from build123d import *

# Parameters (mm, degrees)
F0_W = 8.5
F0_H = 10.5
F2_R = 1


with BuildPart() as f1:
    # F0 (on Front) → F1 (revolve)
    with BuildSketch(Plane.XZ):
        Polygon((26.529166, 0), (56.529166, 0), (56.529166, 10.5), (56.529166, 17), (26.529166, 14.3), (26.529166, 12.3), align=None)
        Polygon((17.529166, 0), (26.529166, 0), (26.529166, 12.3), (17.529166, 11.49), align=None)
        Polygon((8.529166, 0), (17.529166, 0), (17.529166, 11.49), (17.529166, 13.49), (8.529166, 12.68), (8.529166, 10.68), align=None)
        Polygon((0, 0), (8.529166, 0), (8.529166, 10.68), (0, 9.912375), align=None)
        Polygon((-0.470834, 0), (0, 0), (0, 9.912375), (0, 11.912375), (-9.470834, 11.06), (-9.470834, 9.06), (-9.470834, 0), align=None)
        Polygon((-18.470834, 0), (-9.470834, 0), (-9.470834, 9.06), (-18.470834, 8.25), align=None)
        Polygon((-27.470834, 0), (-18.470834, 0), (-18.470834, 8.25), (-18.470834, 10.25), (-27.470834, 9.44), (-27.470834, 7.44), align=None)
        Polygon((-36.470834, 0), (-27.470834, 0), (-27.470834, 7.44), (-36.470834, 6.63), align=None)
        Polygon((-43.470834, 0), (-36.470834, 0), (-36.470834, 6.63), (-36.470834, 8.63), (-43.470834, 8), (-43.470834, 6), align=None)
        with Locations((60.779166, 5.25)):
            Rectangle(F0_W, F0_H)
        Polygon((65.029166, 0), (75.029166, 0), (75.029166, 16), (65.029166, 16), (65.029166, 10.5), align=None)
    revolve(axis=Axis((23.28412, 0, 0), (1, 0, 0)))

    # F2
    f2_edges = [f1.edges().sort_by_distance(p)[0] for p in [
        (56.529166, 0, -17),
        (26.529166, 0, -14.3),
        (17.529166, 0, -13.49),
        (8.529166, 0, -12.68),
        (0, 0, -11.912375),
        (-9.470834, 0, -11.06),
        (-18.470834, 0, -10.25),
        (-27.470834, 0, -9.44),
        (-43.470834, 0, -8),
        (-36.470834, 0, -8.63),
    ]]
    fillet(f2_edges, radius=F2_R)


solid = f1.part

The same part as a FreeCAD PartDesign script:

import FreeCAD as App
import Part
import Sketcher

V = App.Vector
Q = App.Units.Quantity


def edges_at(feature, points):
    """Names of the edges that pass closest to the given points."""
    edges = feature.Shape.Edges
    near = lambda p: min(range(len(edges)), key=lambda i: edges[i].distToShape(Part.Vertex(*p))[0])
    return sorted({f"Edge{near(p) + 1}" for p in points})


def add_polygon(sketch, points):
    """Adds a closed chain of lines whose ends are joined by coincident constraints."""
    first, n = sketch.GeometryCount, len(points)
    for a, b in zip(points, points[1:] + points[:1]):
        sketch.addGeometry(Part.LineSegment(App.Vector(*a, 0), App.Vector(*b, 0)), False)
    for i in range(n):
        sketch.addConstraint(Sketcher.Constraint("Coincident", first + i, 2, first + (i + 1) % n, 1))

doc = App.newDocument("Part")
body = doc.addObject("PartDesign::Body", "Body")

sketch1 = body.newObject("Sketcher::SketchObject", "Sketch")
sketch1.AttachmentSupport = (doc.getObject("XZ_Plane"), [""])
sketch1.MapMode = "FlatFace"
add_polygon(sketch1, [(56.529166, 10.5), (56.529166, 17), (26.529166, 14.3), (26.529166, 12.3), (17.529166, 11.49), (17.529166, 13.49), (8.529166, 12.68), (8.529166, 10.68), (0, 9.912375), (0, 11.912375), (-9.470834, 11.06), (-9.470834, 9.06), (-18.470834, 8.25), (-18.470834, 10.25), (-27.470834, 9.44), (-27.470834, 7.44), (-36.470834, 6.63), (-36.470834, 8.63), (-43.470834, 8), (-43.470834, 0), (75.029166, 0), (75.029166, 16), (65.029166, 16), (65.029166, 10.5)])
sketch1.addConstraint(Sketcher.Constraint("Vertical", 0))
sketch1.addConstraint(Sketcher.Constraint("Vertical", 2))
sketch1.addConstraint(Sketcher.Constraint("Vertical", 4))
sketch1.addConstraint(Sketcher.Constraint("Vertical", 6))
sketch1.addConstraint(Sketcher.Constraint("Vertical", 8))
sketch1.addConstraint(Sketcher.Constraint("Vertical", 10))
sketch1.addConstraint(Sketcher.Constraint("Vertical", 12))
sketch1.addConstraint(Sketcher.Constraint("Vertical", 14))
sketch1.addConstraint(Sketcher.Constraint("Vertical", 16))
sketch1.addConstraint(Sketcher.Constraint("Vertical", 18))
sketch1.addConstraint(Sketcher.Constraint("Horizontal", 19))
sketch1.addConstraint(Sketcher.Constraint("Vertical", 20))
sketch1.addConstraint(Sketcher.Constraint("Horizontal", 21))
sketch1.addConstraint(Sketcher.Constraint("Vertical", 22))
sketch1.addConstraint(Sketcher.Constraint("Horizontal", 23))
sketch1.addConstraint(Sketcher.Constraint("PointOnObject", 7, 2, -2))
sketch1.addConstraint(Sketcher.Constraint("PointOnObject", 18, 2, -1))
sketch1.addConstraint(Sketcher.Constraint("Parallel", 1, 3))
sketch1.addConstraint(Sketcher.Constraint("Parallel", 3, 5))
sketch1.addConstraint(Sketcher.Constraint("Parallel", 5, 7))
sketch1.addConstraint(Sketcher.Constraint("Parallel", 7, 9))
sketch1.addConstraint(Sketcher.Constraint("Parallel", 9, 11))
sketch1.addConstraint(Sketcher.Constraint("Parallel", 11, 13))
sketch1.addConstraint(Sketcher.Constraint("Parallel", 13, 15))
sketch1.addConstraint(Sketcher.Constraint("Parallel", 15, 17))
sketch1.addConstraint(Sketcher.Constraint("Equal", 2, 4))
sketch1.addConstraint(Sketcher.Constraint("Equal", 4, 6))
sketch1.addConstraint(Sketcher.Constraint("Equal", 6, 8))
sketch1.addConstraint(Sketcher.Constraint("Equal", 8, 10))
sketch1.addConstraint(Sketcher.Constraint("Equal", 10, 12))
sketch1.addConstraint(Sketcher.Constraint("Equal", 12, 14))
sketch1.addConstraint(Sketcher.Constraint("Equal", 14, 16))
sketch1.addConstraint(Sketcher.Constraint("Equal", 3, 5))
sketch1.addConstraint(Sketcher.Constraint("Equal", 5, 11))
sketch1.addConstraint(Sketcher.Constraint("Equal", 11, 13))
sketch1.addConstraint(Sketcher.Constraint("Equal", 13, 15))
sketch1.addConstraint(Sketcher.Constraint("DistanceX", 21, 2, 21, 1, Q("10 mm")))
sketch1.addConstraint(Sketcher.Constraint("DistanceY", 2, 2, 2, 1, Q("2 mm")))
sketch1.addConstraint(Sketcher.Constraint("DistanceY", 18, 2, 18, 1, Q("8 mm")))
sketch1.addConstraint(Sketcher.Constraint("DistanceY", 20, 1, 20, 2, Q("16 mm")))
sketch1.addConstraint(Sketcher.Constraint("DistanceX", 19, 1, 19, 2, Q("118.5 mm")))
sketch1.addConstraint(Sketcher.Constraint("DistanceX", 23, 2, 23, 1, Q("8.5 mm")))
sketch1.addConstraint(Sketcher.Constraint("DistanceY", 0, 1, 0, 2, Q("6.5 mm")))
sketch1.addConstraint(Sketcher.Constraint("DistanceY", 22, 2, 22, 1, Q("5.5 mm")))
sketch1.addConstraint(Sketcher.Constraint("DistanceX", 1, 2, 0, 2, Q("30 mm")))
sketch1.addConstraint(Sketcher.Constraint("DistanceX", 3, 2, 2, 2, Q("9 mm")))
sketch1.addConstraint(Sketcher.Constraint("DistanceX", 9, 2, 6, 2, Q("18 mm")))
sketch1.addConstraint(Sketcher.Constraint("Distance", 7, Q("8.563639 mm")))
revolution = body.newObject("PartDesign::Revolution", "Revolution")
revolution.Profile = sketch1
revolution.ReferenceAxis = (sketch1, ["H_Axis"])
revolution.Angle = 360
doc.recompute()

fillet = body.newObject("PartDesign::Fillet", "Fillet")
fillet.Base = (revolution, edges_at(revolution, [
    (56.529, 0, -17),
    (26.529, 0, -14.3),
    (17.529, 0, -13.49),
    (8.529, 0, -12.68),
    (0, 0, -11.912),
    (-9.471, 0, -11.06),
    (-18.471, 0, -10.25),
    (-27.471, 0, -9.44),
    (-43.471, 0, -8),
    (-36.471, 0, -8.63),
]))
fillet.Radius = 1

doc.recompute()
